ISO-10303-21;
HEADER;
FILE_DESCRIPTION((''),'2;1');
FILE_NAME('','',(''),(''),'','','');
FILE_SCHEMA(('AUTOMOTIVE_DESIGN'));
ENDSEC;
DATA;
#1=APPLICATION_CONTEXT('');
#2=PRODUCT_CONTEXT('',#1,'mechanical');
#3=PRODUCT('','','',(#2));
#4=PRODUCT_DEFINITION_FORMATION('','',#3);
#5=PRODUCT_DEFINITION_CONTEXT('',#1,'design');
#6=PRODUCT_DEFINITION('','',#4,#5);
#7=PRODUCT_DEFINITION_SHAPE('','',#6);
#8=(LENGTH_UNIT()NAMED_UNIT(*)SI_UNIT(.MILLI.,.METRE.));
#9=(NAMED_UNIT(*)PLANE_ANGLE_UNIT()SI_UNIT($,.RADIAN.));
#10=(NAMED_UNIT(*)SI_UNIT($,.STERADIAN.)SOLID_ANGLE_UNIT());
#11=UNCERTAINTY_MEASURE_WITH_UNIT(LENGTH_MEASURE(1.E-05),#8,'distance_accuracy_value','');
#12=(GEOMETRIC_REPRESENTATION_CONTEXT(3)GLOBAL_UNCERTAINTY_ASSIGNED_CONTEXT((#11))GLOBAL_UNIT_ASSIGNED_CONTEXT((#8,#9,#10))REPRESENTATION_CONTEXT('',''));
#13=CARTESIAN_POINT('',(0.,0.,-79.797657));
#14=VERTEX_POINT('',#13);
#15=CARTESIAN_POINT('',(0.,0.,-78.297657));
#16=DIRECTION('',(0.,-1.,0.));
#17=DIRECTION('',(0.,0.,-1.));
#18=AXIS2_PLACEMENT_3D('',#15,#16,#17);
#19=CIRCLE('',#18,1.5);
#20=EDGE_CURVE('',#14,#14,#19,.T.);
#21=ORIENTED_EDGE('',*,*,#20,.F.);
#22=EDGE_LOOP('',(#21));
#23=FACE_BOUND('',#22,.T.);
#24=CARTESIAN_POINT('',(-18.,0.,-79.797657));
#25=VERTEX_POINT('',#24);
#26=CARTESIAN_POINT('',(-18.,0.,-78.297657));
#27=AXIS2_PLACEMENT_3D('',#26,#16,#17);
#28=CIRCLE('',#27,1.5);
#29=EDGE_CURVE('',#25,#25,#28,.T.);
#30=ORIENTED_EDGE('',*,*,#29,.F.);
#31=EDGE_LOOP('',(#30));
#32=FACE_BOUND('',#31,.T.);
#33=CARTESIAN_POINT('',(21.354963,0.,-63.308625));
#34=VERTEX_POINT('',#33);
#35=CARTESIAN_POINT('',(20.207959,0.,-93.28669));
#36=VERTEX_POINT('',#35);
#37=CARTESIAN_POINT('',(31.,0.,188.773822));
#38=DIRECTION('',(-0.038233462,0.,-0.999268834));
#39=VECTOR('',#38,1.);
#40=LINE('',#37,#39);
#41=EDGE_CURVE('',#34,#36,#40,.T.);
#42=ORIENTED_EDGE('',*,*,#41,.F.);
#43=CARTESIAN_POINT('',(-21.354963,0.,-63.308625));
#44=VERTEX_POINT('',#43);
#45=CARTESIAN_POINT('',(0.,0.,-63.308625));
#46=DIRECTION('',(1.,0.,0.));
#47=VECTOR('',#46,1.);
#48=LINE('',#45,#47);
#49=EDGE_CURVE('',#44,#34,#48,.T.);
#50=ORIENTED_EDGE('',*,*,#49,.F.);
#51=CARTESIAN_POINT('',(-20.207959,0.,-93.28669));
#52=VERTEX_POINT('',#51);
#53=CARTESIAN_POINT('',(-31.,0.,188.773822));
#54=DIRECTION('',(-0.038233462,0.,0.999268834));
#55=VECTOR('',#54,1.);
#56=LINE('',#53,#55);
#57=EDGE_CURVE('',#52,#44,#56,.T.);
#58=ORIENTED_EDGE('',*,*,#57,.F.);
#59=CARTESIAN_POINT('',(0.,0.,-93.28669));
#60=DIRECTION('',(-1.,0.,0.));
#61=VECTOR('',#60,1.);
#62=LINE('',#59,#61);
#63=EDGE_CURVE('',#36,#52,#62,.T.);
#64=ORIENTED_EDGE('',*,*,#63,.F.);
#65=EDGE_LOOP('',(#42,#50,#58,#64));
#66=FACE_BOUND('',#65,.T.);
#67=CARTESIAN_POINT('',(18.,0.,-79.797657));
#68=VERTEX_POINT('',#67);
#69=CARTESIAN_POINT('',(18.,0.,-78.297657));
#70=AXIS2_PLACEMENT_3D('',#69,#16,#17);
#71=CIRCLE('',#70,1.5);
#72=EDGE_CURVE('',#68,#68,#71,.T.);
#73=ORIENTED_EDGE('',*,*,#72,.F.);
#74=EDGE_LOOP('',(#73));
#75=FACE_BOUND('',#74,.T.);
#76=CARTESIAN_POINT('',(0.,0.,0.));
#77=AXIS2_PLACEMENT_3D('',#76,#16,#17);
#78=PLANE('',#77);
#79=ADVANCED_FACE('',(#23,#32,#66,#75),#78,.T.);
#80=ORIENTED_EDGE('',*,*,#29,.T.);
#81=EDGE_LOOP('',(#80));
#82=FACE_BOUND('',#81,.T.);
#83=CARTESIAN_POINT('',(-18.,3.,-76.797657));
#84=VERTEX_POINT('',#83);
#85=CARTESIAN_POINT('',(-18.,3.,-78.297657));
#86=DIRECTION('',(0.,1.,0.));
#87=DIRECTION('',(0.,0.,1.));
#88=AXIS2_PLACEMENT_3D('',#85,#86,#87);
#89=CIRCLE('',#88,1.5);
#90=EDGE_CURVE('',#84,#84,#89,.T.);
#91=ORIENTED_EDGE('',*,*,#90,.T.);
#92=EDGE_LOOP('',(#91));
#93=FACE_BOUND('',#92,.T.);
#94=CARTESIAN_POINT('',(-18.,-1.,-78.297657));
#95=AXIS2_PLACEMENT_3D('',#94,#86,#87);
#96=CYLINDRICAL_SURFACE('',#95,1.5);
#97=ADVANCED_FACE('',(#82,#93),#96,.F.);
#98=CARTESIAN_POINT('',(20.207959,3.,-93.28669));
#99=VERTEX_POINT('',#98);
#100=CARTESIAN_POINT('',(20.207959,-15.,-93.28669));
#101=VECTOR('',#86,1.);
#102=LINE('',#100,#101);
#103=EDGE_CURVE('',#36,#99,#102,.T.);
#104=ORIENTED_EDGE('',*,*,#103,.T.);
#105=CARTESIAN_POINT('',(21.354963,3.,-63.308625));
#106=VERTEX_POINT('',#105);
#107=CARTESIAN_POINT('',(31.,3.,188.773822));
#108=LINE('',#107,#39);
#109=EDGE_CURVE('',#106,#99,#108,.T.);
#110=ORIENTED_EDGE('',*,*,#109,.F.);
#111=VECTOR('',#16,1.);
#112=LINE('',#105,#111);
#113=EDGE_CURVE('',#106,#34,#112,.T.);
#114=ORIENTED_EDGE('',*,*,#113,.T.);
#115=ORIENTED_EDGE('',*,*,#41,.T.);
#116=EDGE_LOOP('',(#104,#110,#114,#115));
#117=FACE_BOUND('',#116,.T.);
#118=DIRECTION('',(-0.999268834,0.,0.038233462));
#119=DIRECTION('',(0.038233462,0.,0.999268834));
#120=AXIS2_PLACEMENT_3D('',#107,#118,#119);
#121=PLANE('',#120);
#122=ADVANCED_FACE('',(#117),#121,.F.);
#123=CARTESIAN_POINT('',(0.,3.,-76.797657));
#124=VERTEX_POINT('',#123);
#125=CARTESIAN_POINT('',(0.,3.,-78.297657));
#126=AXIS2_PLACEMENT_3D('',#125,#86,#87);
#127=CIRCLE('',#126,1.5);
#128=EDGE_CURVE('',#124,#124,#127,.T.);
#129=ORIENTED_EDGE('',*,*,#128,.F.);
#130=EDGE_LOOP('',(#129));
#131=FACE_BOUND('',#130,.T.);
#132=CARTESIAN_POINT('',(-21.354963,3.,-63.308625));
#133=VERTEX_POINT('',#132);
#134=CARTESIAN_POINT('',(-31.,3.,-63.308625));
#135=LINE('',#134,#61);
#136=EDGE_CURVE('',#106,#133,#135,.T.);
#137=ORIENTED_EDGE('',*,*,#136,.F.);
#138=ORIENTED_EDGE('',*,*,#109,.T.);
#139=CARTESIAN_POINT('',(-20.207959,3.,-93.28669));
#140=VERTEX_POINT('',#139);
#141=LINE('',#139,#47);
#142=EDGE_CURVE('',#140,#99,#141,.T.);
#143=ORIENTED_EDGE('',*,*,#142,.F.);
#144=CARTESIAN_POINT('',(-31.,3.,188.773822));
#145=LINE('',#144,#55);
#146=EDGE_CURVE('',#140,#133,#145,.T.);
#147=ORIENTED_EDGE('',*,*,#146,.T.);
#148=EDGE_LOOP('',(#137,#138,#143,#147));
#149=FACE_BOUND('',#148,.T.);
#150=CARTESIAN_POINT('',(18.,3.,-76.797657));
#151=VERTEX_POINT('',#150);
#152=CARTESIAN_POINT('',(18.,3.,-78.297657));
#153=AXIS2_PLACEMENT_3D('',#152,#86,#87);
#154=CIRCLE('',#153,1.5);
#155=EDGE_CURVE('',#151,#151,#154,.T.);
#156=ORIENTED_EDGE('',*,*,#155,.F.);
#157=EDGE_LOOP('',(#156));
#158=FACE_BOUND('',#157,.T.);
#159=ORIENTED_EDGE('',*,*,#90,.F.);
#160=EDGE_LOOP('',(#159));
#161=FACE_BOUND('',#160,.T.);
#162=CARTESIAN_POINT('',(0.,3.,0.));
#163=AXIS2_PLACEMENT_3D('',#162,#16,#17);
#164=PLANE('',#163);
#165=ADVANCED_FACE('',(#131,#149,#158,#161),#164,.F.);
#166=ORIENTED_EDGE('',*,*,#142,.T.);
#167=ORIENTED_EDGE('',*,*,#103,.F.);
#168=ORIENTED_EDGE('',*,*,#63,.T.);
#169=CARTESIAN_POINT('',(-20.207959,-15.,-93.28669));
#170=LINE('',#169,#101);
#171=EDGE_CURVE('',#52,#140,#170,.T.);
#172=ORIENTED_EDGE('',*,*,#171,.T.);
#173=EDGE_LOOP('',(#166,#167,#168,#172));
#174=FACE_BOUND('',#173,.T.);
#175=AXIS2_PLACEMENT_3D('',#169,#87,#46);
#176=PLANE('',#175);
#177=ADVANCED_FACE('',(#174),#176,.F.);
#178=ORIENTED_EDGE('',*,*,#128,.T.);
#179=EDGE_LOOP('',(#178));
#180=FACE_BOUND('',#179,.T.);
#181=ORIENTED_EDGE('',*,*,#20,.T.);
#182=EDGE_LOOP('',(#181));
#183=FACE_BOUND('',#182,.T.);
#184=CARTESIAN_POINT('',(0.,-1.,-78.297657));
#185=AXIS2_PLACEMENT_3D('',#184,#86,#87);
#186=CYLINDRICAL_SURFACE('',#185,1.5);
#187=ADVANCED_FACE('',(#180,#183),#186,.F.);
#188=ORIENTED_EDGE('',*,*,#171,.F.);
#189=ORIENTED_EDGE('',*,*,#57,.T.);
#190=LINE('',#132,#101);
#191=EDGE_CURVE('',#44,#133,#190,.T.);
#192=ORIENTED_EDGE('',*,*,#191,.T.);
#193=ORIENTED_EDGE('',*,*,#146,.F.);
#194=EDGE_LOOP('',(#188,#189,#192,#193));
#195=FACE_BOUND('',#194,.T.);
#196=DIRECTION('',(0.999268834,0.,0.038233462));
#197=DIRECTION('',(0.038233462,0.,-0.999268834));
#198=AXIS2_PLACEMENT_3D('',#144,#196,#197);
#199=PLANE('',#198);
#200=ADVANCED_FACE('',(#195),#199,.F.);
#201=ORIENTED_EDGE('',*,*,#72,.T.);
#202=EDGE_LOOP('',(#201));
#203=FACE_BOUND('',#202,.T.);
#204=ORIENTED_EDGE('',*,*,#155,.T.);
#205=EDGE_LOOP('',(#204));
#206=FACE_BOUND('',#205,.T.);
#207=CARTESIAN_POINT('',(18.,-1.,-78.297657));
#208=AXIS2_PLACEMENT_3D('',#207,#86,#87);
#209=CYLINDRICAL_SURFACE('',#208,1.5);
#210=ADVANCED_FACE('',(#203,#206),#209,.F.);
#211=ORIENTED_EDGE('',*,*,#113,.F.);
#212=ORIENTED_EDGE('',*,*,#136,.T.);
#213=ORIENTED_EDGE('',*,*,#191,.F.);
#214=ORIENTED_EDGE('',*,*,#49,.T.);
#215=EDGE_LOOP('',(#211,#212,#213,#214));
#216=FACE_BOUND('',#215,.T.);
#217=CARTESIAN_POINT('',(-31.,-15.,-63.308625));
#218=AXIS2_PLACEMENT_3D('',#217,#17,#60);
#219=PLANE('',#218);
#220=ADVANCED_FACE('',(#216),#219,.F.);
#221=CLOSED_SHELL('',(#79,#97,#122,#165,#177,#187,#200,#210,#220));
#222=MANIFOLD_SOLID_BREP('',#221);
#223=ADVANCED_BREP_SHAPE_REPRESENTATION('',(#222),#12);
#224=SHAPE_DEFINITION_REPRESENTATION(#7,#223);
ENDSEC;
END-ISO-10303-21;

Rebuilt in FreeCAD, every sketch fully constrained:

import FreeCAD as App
import Part
import Sketcher

V = App.Vector

doc = App.newDocument("Part")
body = doc.addObject("PartDesign::Body", "Body")

sketch1 = body.newObject("Sketcher::SketchObject", "Sketch")
sketch1.AttachmentSupport = (doc.getObject("XZ_Plane"), [""])
sketch1.MapMode = "FlatFace"
sketch1.addGeometry([
    Part.LineSegment(V(-31, 189, 0), V(31, 189, 0)),
    Part.LineSegment(V(31, 189, 0), V(17, -189, 0)),
    Part.LineSegment(V(17, -189, 0), V(-17, -189, 0)),
    Part.LineSegment(V(-17, -189, 0), V(-31, 189, 0)),
], False)
sketch1.addConstraint([
    Sketcher.Constraint("Coincident", 0, 2, 1, 1),
    Sketcher.Constraint("Coincident", 1, 2, 2, 1),
    Sketcher.Constraint("Coincident", 2, 2, 3, 1),
    Sketcher.Constraint("Coincident", 3, 2, 0, 1),
    Sketcher.Constraint("Horizontal", 0),
    Sketcher.Constraint("Horizontal", 2),
    Sketcher.Constraint("Equal", 1, 3),
    Sketcher.Constraint("DistanceX", 0, 1, 0, 2, 62.0),
    Sketcher.Constraint("DistanceX", -1, 1, 0, 2, 31.0),
    Sketcher.Constraint("DistanceX", 2, 2, 2, 1, 33.108969),
    Sketcher.Constraint("DistanceY", -1, 1, 0, 2, 188.773822),
    Sketcher.Constraint("DistanceY", 1, 2, -1, 1, 188.773822),
])
pad1 = body.newObject("PartDesign::Pad", "Pad")
pad1.Profile = sketch1
pad1.Length = 3
pad1.Reversed = True

sketch2 = body.newObject("Sketcher::SketchObject", "Sketch001")
sketch2.AttachmentSupport = (doc.getObject("XZ_Plane"), [""])
sketch2.MapMode = "FlatFace"
sketch2.AttachmentOffset = App.Placement(V(0, 0, -3), App.Rotation())
sketch2.addGeometry([
    Part.Circle(V(0, -78.3, 0), V(0, 0, 1), 1.5),
    Part.Circle(V(-18, -78.3, 0), V(0, 0, 1), 1.5),
    Part.Circle(V(18, -78.3, 0), V(0, 0, 1), 1.5),
], False)
sketch2.addConstraint([
    Sketcher.Constraint("Equal", 0, 1),
    Sketcher.Constraint("Equal", 1, 2),
    Sketcher.Constraint("Symmetric", 1, 3, 2, 3, -2),
    Sketcher.Constraint("PointOnObject", 0, 3, -2),
    Sketcher.Constraint("Horizontal", 0, 3, 1, 3),
    Sketcher.Constraint("Diameter", 0, 3.0),
    Sketcher.Constraint("DistanceX", 1, 3, -1, 1, 18.0),
    Sketcher.Constraint("DistanceY", 0, 3, -1, 1, 78.297657),
])
pocket1 = body.newObject("PartDesign::Pocket", "Pocket")
pocket1.Profile = sketch2
pocket1.Length = 4
pocket1.Reversed = True

sketch3 = body.newObject("Sketcher::SketchObject", "Sketch002")
sketch3.AttachmentSupport = (doc.getObject("XZ_Plane"), [""])
sketch3.MapMode = "FlatFace"
sketch3.AttachmentOffset = App.Placement(V(0, 0, -3), App.Rotation())
sketch3.addGeometry([
    Part.LineSegment(V(-20, -191, 0), V(-20, -93, 0)),
    Part.LineSegment(V(-20, -93, 0), V(20, -93, 0)),
    Part.LineSegment(V(20, -93, 0), V(20, -191, 0)),
    Part.LineSegment(V(20, -191, 0), V(-20, -191, 0)),
    Part.LineSegment(V(-31, -63, 0), V(-31, 189, 0)),
    Part.LineSegment(V(-31, 189, 0), V(32, 189, 0)),
    Part.LineSegment(V(32, 189, 0), V(32, -63, 0)),
    Part.LineSegment(V(32, -63, 0), V(-31, -63, 0)),
], False)
sketch3.addConstraint([
    Sketcher.Constraint("Coincident", 0, 2, 1, 1),
    Sketcher.Constraint("Coincident", 1, 2, 2, 1),
    Sketcher.Constraint("Coincident", 2, 2, 3, 1),
    Sketcher.Constraint("Coincident", 3, 2, 0, 1),
    Sketcher.Constraint("Coincident", 4, 2, 5, 1),
    Sketcher.Constraint("Coincident", 5, 2, 6, 1),
    Sketcher.Constraint("Coincident", 6, 2, 7, 1),
    Sketcher.Constraint("Coincident", 7, 2, 4, 1),
    Sketcher.Constraint("Vertical", 0),
    Sketcher.Constraint("Horizontal", 1),
    Sketcher.Constraint("Vertical", 2),
    Sketcher.Constraint("Horizontal", 3),
    Sketcher.Constraint("Vertical", 4),
    Sketcher.Constraint("Horizontal", 5),
    Sketcher.Constraint("Vertical", 6),
    Sketcher.Constraint("Horizontal", 7),
    Sketcher.Constraint("DistanceX", 4, 2, -1, 1, 31.0),
    Sketcher.Constraint("DistanceX", 1, 1, 1, 2, 40.415919),
    Sketcher.Constraint("DistanceX", 5, 1, 5, 2, 62.592919),
    Sketcher.Constraint("DistanceY", 0, 1, 0, 2, 97.617869),
    Sketcher.Constraint("DistanceY", 4, 1, 4, 2, 252.082447),
    Sketcher.Constraint("DistanceX", 0, 2, -1, 1, 20.207959),
    Sketcher.Constraint("DistanceY", 0, 2, -1, 1, 93.28669),
    Sketcher.Constraint("DistanceY", -1, 1, 4, 2, 188.773822),
])
pocket2 = body.newObject("PartDesign::Pocket", "Pocket001")
pocket2.Profile = sketch3
pocket2.Length = 18
pocket2.Reversed = True

doc.recompute()
